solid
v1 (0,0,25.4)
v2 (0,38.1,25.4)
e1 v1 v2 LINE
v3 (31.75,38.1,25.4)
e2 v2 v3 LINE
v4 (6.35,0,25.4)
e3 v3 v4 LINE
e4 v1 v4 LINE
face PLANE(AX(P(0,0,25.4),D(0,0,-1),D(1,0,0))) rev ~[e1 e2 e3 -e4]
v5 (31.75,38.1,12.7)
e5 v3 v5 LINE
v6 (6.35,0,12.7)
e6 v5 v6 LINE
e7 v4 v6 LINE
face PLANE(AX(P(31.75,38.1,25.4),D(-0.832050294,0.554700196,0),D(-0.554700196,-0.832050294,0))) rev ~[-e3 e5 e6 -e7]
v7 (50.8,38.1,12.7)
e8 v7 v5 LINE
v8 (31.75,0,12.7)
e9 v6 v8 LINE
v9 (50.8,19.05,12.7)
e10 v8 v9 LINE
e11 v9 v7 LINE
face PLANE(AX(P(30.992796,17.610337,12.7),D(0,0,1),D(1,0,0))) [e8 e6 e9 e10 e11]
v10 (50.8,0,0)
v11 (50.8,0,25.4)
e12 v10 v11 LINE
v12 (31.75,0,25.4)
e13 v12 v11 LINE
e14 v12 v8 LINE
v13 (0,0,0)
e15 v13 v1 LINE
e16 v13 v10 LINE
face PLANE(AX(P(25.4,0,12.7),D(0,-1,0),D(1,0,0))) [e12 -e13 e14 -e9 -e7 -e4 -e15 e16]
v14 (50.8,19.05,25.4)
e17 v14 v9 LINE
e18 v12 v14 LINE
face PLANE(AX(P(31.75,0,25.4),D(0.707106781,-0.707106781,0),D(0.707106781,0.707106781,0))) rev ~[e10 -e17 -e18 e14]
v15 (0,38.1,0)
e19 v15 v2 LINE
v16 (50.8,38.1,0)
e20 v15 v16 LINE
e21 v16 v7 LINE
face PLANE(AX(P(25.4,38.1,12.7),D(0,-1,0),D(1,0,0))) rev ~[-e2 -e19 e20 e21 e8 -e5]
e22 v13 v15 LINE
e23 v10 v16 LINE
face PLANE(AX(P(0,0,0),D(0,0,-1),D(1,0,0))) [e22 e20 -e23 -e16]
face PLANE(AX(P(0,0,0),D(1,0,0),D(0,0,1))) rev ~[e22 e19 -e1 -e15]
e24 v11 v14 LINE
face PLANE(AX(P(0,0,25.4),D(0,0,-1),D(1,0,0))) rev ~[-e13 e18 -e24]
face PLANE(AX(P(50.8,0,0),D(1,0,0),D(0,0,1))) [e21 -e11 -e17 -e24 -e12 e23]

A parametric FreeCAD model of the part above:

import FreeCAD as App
import Part
import Sketcher

V = App.Vector
Q = App.Units.Quantity


def add_polygon(sketch, points):
    """Adds a closed chain of lines whose ends are joined by coincident constraints."""
    first, n = sketch.GeometryCount, len(points)
    for a, b in zip(points, points[1:] + points[:1]):
        sketch.addGeometry(Part.LineSegment(App.Vector(*a, 0), App.Vector(*b, 0)), False)
    for i in range(n):
        sketch.addConstraint(Sketcher.Constraint("Coincident", first + i, 2, first + (i + 1) % n, 1))

doc = App.newDocument("Part")
body = doc.addObject("PartDesign::Body", "Body")

# Sketch on XZ plane
sketch1 = body.newObject("Sketcher::SketchObject", "Sketch")
sketch1.AttachmentSupport = (doc.getObject("XZ_Plane"), [""])
sketch1.MapMode = "FlatFace"
add_polygon(sketch1, [(0, 25.4), (0, 0), (50.8, 0), (50.8, 25.4)])  # lines 0-3
sketch1.addConstraint(Sketcher.Constraint("Vertical", 0))
sketch1.addConstraint(Sketcher.Constraint("Horizontal", 1))
sketch1.addConstraint(Sketcher.Constraint("Vertical", 2))
sketch1.addConstraint(Sketcher.Constraint("Horizontal", 3))
sketch1.addConstraint(Sketcher.Constraint("Coincident", 0, 2, -1, 1))
sketch1.addConstraint(Sketcher.Constraint("DistanceX", 1, 1, 1, 2, Q("2 in")))
sketch1.addConstraint(Sketcher.Constraint("DistanceY", 0, 2, 0, 1, Q("1 in")))
pad1 = body.newObject("PartDesign::Pad", "Pad")
pad1.Profile = sketch1
pad1.Length = Q("1.5 in")
pad1.Reversed = True

# Sketch on XY plane
sketch2 = body.newObject("Sketcher::SketchObject", "Sketch001")
sketch2.AttachmentSupport = (doc.getObject("XY_Plane"), [""])
sketch2.MapMode = "FlatFace"
sketch2.AttachmentOffset = App.Placement(V(0, 0, 1 * 25.4), App.Rotation())
add_polygon(sketch2, [(31.75, 38.1), (6.35, 0), (31.75, 0), (50.8, 19.05), (50.8, 38.1)])  # lines 0-4
sketch2.addConstraint(Sketcher.Constraint("Horizontal", 1))
sketch2.addConstraint(Sketcher.Constraint("Vertical", 3))
sketch2.addConstraint(Sketcher.Constraint("Horizontal", 4))
sketch2.addConstraint(Sketcher.Constraint("PointOnObject", 0, 2, -1))
sketch2.addConstraint(Sketcher.Constraint("Vertical", 1, 2, 4, 2))
sketch2.addConstraint(Sketcher.Constraint("Equal", 4, 3))
sketch2.addConstraint(Sketcher.Constraint("DistanceX", 1, 1, 1, 2, Q("1 in")))
sketch2.addConstraint(Sketcher.Constraint("DistanceX", -1, 1, 2, 2, Q("2 in")))
sketch2.addConstraint(Sketcher.Constraint("Angle", 2, Q("45 deg")))
sketch2.addConstraint(Sketcher.Constraint("DistanceX", 4, 2, 4, 1, Q("0.75 in")))
pocket1 = body.newObject("PartDesign::Pocket", "Pocket")
pocket1.Profile = sketch2
pocket1.Length = Q("0.5 in")

doc.recompute()
